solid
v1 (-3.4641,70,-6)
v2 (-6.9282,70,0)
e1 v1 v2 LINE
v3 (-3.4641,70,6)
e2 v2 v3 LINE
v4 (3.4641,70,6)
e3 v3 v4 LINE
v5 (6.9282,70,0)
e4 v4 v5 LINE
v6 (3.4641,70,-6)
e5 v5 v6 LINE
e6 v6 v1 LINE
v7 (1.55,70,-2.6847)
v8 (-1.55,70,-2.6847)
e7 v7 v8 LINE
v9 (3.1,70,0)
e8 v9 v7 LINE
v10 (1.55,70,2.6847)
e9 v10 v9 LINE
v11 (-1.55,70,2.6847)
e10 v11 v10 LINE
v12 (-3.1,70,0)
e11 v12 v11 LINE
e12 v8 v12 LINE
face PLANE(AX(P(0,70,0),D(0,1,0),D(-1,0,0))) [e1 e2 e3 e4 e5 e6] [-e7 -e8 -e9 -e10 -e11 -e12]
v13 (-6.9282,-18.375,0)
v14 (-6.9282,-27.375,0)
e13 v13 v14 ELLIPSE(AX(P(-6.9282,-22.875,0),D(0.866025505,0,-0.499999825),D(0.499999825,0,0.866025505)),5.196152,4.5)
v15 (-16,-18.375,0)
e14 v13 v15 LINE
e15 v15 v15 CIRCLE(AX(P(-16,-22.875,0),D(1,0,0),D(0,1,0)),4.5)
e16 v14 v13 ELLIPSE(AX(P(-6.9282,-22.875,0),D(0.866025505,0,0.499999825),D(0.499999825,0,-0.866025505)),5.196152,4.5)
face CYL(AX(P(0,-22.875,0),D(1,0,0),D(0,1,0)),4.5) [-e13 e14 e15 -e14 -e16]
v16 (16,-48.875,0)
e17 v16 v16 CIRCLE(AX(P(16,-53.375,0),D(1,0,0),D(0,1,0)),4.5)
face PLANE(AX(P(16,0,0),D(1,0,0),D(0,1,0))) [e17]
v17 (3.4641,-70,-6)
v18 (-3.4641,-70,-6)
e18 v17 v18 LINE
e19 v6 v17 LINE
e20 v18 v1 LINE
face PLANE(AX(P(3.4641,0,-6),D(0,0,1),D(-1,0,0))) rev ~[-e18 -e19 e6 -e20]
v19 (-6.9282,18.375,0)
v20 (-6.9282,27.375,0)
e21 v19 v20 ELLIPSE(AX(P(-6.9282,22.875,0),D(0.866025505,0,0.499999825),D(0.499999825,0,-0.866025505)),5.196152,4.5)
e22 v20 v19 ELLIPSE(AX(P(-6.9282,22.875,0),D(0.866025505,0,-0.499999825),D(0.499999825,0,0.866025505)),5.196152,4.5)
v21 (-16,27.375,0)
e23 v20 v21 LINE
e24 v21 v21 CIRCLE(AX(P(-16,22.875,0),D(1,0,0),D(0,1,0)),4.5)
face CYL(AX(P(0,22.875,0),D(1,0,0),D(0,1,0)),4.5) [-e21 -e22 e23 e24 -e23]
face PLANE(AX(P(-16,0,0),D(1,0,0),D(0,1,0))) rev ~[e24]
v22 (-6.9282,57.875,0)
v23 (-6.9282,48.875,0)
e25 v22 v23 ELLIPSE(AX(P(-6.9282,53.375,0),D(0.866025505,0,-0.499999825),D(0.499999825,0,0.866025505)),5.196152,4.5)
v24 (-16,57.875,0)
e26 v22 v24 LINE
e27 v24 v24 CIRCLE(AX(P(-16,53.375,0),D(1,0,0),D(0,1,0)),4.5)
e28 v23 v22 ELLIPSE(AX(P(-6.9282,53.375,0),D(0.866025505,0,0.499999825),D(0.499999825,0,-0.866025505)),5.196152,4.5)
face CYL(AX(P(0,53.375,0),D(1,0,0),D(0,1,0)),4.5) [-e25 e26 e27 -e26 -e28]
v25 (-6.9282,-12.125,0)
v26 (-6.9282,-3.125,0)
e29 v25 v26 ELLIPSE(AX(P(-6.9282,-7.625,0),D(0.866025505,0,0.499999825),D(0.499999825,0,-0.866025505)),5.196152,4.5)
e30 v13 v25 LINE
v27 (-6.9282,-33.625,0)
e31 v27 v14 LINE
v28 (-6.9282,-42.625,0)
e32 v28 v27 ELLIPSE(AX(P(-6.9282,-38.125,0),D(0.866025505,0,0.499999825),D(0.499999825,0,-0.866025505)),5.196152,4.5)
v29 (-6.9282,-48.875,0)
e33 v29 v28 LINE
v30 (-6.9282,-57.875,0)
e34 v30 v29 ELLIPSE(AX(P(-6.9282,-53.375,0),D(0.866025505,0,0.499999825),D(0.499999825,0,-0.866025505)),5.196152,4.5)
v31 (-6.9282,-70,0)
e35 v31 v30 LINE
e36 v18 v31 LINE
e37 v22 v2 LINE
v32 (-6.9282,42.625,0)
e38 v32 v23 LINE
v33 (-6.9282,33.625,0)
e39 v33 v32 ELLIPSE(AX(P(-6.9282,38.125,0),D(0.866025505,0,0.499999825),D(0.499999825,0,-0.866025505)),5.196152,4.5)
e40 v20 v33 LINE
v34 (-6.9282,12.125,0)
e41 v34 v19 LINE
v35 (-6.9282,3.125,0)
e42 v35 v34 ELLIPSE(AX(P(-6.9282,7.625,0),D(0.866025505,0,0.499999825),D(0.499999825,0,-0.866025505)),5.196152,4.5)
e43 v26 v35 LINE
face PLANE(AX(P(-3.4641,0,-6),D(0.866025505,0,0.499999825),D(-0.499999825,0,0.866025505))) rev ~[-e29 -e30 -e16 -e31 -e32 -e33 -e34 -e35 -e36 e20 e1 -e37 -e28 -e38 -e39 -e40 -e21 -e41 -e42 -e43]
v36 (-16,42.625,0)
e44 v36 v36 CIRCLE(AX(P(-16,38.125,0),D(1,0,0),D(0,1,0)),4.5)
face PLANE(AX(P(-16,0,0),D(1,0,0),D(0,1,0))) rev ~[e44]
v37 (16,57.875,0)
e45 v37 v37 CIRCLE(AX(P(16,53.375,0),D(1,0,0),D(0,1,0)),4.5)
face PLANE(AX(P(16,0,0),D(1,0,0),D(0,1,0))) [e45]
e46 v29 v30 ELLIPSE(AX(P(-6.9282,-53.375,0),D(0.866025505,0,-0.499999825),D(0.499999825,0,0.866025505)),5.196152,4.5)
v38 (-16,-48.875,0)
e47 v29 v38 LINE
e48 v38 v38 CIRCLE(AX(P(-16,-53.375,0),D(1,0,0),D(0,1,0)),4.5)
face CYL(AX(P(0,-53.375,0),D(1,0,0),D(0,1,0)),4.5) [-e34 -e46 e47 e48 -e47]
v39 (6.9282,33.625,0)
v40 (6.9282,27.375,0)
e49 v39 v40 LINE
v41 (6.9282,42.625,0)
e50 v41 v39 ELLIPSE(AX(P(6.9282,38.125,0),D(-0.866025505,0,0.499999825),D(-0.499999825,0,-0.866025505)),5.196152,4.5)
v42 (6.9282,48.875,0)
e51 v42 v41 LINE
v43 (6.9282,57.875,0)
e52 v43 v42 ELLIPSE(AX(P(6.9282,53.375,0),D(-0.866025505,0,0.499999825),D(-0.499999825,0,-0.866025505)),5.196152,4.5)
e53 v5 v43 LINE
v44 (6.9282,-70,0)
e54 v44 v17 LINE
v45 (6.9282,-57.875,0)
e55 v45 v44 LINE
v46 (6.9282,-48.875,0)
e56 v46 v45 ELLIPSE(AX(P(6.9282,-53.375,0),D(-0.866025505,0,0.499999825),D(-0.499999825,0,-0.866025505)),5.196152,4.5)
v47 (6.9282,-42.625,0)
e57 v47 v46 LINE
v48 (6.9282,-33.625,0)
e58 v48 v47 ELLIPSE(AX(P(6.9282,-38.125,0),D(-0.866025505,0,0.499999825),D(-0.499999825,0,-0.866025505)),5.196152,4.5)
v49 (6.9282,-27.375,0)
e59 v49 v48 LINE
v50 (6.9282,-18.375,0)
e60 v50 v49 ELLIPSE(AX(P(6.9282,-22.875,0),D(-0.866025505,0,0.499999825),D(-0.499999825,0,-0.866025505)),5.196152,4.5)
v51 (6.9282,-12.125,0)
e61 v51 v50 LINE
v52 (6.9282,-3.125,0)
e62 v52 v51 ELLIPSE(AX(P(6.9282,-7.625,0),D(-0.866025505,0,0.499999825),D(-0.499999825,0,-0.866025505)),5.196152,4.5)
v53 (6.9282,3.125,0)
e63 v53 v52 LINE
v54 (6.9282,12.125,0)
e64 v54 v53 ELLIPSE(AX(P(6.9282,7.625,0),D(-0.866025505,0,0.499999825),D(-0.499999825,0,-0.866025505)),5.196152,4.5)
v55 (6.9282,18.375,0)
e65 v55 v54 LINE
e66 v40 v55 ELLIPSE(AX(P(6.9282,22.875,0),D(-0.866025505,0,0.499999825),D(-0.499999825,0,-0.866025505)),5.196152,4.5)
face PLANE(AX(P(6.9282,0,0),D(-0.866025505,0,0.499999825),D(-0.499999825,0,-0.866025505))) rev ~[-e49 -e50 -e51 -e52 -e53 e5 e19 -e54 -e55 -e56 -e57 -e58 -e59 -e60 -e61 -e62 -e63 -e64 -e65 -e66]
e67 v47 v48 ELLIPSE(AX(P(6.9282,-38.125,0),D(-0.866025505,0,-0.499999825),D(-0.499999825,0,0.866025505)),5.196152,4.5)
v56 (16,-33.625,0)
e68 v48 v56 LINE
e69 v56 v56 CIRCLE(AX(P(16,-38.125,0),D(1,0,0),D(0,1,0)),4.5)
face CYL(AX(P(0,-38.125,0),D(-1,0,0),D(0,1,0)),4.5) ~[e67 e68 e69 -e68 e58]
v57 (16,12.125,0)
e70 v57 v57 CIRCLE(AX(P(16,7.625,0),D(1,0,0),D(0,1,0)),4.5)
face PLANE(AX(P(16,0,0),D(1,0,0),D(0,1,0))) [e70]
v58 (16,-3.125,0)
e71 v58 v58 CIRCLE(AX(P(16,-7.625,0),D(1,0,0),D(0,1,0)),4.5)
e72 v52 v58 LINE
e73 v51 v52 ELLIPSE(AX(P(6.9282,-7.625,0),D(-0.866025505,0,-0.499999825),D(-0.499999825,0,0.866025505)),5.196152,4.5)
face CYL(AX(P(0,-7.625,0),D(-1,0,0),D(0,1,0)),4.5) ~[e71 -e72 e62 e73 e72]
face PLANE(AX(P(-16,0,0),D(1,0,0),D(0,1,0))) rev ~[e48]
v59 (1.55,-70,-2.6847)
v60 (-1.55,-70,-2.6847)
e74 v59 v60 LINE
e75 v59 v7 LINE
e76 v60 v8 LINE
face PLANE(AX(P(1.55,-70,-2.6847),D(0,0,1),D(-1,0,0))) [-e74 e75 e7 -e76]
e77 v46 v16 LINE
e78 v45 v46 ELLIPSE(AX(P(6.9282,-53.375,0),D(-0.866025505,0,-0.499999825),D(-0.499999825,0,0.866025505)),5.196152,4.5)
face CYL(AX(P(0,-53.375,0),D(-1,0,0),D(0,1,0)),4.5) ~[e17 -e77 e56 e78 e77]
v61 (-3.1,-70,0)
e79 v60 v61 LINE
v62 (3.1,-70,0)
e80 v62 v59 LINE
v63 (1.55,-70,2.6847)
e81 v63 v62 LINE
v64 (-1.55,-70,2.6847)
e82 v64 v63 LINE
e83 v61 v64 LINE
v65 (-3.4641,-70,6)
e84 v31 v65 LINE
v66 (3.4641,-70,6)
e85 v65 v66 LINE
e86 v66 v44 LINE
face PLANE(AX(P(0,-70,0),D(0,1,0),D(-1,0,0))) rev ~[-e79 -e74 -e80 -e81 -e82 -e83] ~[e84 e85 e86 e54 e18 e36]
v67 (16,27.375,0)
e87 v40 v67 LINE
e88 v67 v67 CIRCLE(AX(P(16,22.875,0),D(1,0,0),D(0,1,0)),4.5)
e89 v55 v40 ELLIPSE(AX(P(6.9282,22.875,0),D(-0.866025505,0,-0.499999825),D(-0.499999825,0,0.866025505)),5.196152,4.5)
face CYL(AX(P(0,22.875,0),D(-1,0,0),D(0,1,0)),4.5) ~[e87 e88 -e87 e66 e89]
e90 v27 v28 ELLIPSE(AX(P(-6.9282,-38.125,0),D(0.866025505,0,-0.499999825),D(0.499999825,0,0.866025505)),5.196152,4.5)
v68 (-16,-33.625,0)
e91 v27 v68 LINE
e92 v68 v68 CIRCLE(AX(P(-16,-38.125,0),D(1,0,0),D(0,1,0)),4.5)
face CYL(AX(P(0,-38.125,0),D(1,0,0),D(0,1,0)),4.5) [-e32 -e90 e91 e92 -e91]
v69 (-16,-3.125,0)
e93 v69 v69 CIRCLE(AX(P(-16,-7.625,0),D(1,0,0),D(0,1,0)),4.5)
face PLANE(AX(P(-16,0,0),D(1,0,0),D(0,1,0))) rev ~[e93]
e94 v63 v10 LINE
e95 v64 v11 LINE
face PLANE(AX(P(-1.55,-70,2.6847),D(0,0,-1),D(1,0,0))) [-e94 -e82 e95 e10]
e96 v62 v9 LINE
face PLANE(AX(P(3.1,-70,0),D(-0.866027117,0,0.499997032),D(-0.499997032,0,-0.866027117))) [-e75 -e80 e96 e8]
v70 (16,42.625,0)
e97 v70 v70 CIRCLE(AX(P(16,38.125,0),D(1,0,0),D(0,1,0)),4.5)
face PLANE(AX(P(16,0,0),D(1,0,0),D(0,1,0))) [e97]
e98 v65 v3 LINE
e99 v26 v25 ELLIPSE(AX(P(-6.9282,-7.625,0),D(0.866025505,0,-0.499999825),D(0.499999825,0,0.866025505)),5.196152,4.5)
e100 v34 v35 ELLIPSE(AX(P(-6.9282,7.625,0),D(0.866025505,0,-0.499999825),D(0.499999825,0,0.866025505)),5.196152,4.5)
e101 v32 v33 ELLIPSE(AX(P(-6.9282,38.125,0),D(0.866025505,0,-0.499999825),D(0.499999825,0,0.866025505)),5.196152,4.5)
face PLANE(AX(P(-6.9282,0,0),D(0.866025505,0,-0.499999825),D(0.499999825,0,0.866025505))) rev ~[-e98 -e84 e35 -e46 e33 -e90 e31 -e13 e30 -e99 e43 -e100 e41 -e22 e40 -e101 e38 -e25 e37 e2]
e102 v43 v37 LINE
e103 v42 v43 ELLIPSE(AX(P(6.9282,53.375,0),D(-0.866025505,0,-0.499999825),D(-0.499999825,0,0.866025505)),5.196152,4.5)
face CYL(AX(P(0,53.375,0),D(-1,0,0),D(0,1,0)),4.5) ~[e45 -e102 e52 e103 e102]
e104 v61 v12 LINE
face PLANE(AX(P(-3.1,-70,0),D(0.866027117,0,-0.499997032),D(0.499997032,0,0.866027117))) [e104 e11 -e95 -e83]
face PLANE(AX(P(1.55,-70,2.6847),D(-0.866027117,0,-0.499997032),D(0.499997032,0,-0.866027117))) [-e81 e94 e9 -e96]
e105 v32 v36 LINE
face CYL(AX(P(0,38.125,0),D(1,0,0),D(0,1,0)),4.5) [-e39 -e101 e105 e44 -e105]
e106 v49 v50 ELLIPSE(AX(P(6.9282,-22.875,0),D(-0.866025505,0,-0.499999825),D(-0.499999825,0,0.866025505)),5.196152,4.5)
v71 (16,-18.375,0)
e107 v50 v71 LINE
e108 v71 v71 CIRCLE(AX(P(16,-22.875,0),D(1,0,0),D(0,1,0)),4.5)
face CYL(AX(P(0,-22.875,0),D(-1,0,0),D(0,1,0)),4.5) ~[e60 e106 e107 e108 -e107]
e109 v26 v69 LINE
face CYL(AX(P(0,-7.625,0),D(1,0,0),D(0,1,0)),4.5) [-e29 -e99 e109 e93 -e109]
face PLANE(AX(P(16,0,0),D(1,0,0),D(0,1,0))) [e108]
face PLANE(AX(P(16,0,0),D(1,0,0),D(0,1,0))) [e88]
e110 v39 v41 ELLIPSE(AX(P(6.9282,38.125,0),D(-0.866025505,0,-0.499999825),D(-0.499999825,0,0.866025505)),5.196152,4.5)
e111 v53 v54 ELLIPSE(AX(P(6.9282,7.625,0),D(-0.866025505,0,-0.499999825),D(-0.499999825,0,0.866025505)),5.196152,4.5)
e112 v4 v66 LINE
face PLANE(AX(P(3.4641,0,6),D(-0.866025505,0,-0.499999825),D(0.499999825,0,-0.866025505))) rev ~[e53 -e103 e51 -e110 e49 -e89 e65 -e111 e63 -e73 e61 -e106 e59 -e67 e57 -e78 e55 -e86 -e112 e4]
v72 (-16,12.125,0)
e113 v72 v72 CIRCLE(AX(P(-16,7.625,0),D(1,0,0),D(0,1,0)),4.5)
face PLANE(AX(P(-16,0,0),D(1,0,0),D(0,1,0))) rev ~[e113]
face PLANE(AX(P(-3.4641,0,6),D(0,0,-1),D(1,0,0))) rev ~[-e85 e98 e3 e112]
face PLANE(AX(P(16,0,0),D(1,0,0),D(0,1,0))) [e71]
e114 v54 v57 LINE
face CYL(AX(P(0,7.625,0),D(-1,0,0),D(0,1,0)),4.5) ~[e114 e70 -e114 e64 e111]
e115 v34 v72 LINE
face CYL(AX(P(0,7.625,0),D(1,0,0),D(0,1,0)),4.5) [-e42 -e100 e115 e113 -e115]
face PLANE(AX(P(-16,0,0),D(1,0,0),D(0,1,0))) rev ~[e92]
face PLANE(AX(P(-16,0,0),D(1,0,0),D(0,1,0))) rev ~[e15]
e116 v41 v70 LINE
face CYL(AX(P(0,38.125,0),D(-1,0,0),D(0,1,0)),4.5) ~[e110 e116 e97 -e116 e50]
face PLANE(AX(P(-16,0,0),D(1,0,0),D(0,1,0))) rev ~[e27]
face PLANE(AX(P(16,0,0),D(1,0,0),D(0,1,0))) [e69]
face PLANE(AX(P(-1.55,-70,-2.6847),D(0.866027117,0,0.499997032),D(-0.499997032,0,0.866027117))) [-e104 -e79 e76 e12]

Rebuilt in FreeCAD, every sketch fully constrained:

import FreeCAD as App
import Part
import Sketcher
Q = App.Units.Quantity


def add_polygon(sketch, points):
    """Adds a closed chain of lines whose ends are joined by coincident constraints."""
    first, n = sketch.GeometryCount, len(points)
    for a, b in zip(points, points[1:] + points[:1]):
        sketch.addGeometry(Part.LineSegment(App.Vector(*a, 0), App.Vector(*b, 0)), False)
    for i in range(n):
        sketch.addConstraint(Sketcher.Constraint("Coincident", first + i, 2, first + (i + 1) % n, 1))

doc = App.newDocument("Part")
body = doc.addObject("PartDesign::Body", "Body")

sketch1 = body.newObject("Sketcher::SketchObject", "Sketch")
sketch1.AttachmentSupport = (doc.getObject("XZ_Plane"), [""])
sketch1.MapMode = "FlatFace"
add_polygon(sketch1, [(3, -6), (-3, -6), (-7, 0), (-3, 6), (3, 6), (7, 0)])
sketch1.addConstraint(Sketcher.Constraint("Horizontal", 0))
sketch1.addConstraint(Sketcher.Constraint("Horizontal", 3))
sketch1.addConstraint(Sketcher.Constraint("Symmetric", 0, 2, 3, 2, -1, 1))
sketch1.addConstraint(Sketcher.Constraint("Symmetric", 1, 2, 4, 2, -1, 1))
sketch1.addConstraint(Sketcher.Constraint("PointOnObject", 1, 2, -1))
sketch1.addConstraint(Sketcher.Constraint("Parallel", 2, 5))
sketch1.addConstraint(Sketcher.Constraint("Vertical", 0, 2, 2, 2))
sketch1.addConstraint(Sketcher.Constraint("Angle", 1, Q("120 deg")))
sketch1.addConstraint(Sketcher.Constraint("DistanceY", 0, 2, 2, 2, 12.0))
sketch1.addConstraint(Sketcher.Constraint("DistanceX", 0, 2, 0, 1, 6.9282))
pad1 = body.newObject("PartDesign::Pad", "Pad")
pad1.Profile = sketch1
pad1.Length = 140
pad1.Midplane = True

sketch2 = body.newObject("Sketcher::SketchObject", "Sketch001")
sketch2.AttachmentSupport = (doc.getObject("YZ_Plane"), [""])
sketch2.MapMode = "FlatFace"
sketch2.addGeometry(Part.Circle(App.Vector(-7.6, 0, 0), App.Vector(0, 0, 1), 4.5), False)
sketch2.addGeometry(Part.Circle(App.Vector(7.6, 0, 0), App.Vector(0, 0, 1), 4.5), False)
sketch2.addGeometry(Part.Circle(App.Vector(22.9, 0, 0), App.Vector(0, 0, 1), 4.5), False)
sketch2.addGeometry(Part.Circle(App.Vector(38.1, 0, 0), App.Vector(0, 0, 1), 4.5), False)
sketch2.addGeometry(Part.Circle(App.Vector(-22.9, 0, 0), App.Vector(0, 0, 1), 4.5), False)
sketch2.addGeometry(Part.Circle(App.Vector(-38.1, 0, 0), App.Vector(0, 0, 1), 4.5), False)
sketch2.addGeometry(Part.Circle(App.Vector(-53.4, 0, 0), App.Vector(0, 0, 1), 4.5), False)
sketch2.addGeometry(Part.Circle(App.Vector(53.4, 0, 0), App.Vector(0, 0, 1), 4.5), False)
sketch2.addConstraint(Sketcher.Constraint("Equal", 0, 1))
sketch2.addConstraint(Sketcher.Constraint("Equal", 1, 2))
sketch2.addConstraint(Sketcher.Constraint("Equal", 2, 3))
sketch2.addConstraint(Sketcher.Constraint("Equal", 3, 4))
sketch2.addConstraint(Sketcher.Constraint("Equal", 4, 5))
sketch2.addConstraint(Sketcher.Constraint("Equal", 5, 6))
sketch2.addConstraint(Sketcher.Constraint("Equal", 6, 7))
sketch2.addConstraint(Sketcher.Constraint("Symmetric", 0, 3, 1, 3, -1, 1))
sketch2.addConstraint(Sketcher.Constraint("Symmetric", 2, 3, 4, 3, -1, 1))
sketch2.addConstraint(Sketcher.Constraint("Symmetric", 3, 3, 5, 3, -1, 1))
sketch2.addConstraint(Sketcher.Constraint("Symmetric", 6, 3, 7, 3, -1, 1))
sketch2.addConstraint(Sketcher.Constraint("PointOnObject", 0, 3, -1))
sketch2.addConstraint(Sketcher.Constraint("PointOnObject", 2, 3, -1))
sketch2.addConstraint(Sketcher.Constraint("PointOnObject", 3, 3, -1))
sketch2.addConstraint(Sketcher.Constraint("PointOnObject", 6, 3, -1))
sketch2.addConstraint(Sketcher.Constraint("Diameter", 0, 9.0))
sketch2.addConstraint(Sketcher.Constraint("DistanceX", 0, 3, 1, 3, 15.25))
sketch2.addConstraint(Sketcher.Constraint("DistanceX", 1, 3, 2, 3, 15.25))
sketch2.addConstraint(Sketcher.Constraint("DistanceX", 2, 3, 3, 3, 15.25))
sketch2.addConstraint(Sketcher.Constraint("DistanceX", 6, 3, 5, 3, 15.25))
pad2 = body.newObject("PartDesign::Pad", "Pad001")
pad2.Profile = sketch2
pad2.Length = 32
pad2.Midplane = True

sketch3 = body.newObject("Sketcher::SketchObject", "Sketch002")
sketch3.AttachmentSupport = (doc.getObject("XZ_Plane"), [""])
sketch3.MapMode = "FlatFace"
sketch3.AttachmentOffset = App.Placement(App.Vector(0, 0, 70), App.Rotation())
add_polygon(sketch3, [(-1.6, -2.7), (1.6, -2.7), (3.1, 0), (1.6, 2.7), (-1.6, 2.7), (-3.1, 0)])
sketch3.addConstraint(Sketcher.Constraint("Horizontal", 0))
sketch3.addConstraint(Sketcher.Constraint("Horizontal", 3))
sketch3.addConstraint(Sketcher.Constraint("Symmetric", 0, 2, 3, 2, -1, 1))
sketch3.addConstraint(Sketcher.Constraint("Symmetric", 1, 2, 4, 2, -1, 1))
sketch3.addConstraint(Sketcher.Constraint("PointOnObject", 1, 2, -1))
sketch3.addConstraint(Sketcher.Constraint("Parallel", 2, 5))
sketch3.addConstraint(Sketcher.Constraint("Vertical", 0, 2, 2, 2))
sketch3.addConstraint(Sketcher.Constraint("Angle", 2, Q("119.9998 deg")))
sketch3.addConstraint(Sketcher.Constraint("DistanceX", 0, 1, 0, 2, 3.1))
sketch3.addConstraint(Sketcher.Constraint("Distance", 1, 3.1))
pocket1 = body.newObject("PartDesign::Pocket", "Pocket")
pocket1.Profile = sketch3
pocket1.Length = 140

doc.recompute()
